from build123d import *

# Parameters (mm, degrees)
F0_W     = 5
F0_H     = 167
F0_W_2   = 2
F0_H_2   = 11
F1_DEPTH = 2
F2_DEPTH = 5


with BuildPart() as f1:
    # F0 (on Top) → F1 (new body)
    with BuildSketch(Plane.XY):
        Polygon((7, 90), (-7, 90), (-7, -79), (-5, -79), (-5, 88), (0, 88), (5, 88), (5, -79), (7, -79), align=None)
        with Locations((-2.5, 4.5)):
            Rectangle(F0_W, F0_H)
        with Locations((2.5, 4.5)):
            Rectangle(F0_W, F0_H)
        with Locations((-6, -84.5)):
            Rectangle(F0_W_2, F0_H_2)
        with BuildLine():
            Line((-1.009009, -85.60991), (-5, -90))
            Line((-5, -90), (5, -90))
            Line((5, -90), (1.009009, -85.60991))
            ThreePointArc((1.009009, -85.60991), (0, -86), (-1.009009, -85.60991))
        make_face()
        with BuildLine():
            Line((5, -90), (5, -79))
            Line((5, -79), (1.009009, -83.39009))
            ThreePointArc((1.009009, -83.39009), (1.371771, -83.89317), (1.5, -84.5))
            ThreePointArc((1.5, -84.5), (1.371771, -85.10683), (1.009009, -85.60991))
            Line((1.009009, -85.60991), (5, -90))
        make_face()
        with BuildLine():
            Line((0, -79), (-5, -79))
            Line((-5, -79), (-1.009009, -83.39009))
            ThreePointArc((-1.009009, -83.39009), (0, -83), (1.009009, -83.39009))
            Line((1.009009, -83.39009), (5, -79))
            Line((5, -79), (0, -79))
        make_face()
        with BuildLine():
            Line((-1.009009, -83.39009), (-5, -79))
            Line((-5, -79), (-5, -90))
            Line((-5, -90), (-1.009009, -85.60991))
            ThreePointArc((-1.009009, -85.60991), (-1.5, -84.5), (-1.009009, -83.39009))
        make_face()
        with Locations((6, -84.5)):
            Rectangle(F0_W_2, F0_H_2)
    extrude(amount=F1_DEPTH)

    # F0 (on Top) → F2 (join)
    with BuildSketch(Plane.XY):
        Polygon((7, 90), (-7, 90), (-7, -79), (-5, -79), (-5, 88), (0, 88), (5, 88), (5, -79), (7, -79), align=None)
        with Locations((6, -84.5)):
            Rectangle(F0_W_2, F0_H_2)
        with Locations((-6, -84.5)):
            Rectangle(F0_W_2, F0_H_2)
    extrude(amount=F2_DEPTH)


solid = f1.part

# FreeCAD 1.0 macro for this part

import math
import FreeCAD as App
import Part
import Sketcher

V = App.Vector

doc = App.newDocument("Part")
body = doc.addObject("PartDesign::Body", "Body")

sketch1 = body.newObject("Sketcher::SketchObject", "Sketch")
sketch1.AttachmentSupport = (doc.getObject("XY_Plane"), [""])
sketch1.MapMode = "FlatFace"
sketch1.addGeometry(Part.LineSegment(V(-7, -90, 0), V(7, -90, 0)), False)
sketch1.addGeometry(Part.LineSegment(V(7, -90, 0), V(7, 90, 0)), False)
sketch1.addGeometry(Part.LineSegment(V(7, 90, 0), V(-7, 90, 0)), False)
sketch1.addGeometry(Part.LineSegment(V(-7, 90, 0), V(-7, -90, 0)), False)
sketch1.addGeometry(Part.ArcOfCircle(Part.Circle(V(0, -84.5, 0), V(0, 0, 1), 1.5), math.radians(-132), math.radians(-48)), False)
sketch1.addGeometry(Part.ArcOfCircle(Part.Circle(V(0, -84.5, 0), V(0, 0, 1), 1.5), math.radians(132), math.radians(228)), False)
sketch1.addGeometry(Part.ArcOfCircle(Part.Circle(V(0, -84.5, 0), V(0, 0, 1), 1.5), math.radians(48), math.radians(132)), False)
sketch1.addGeometry(Part.ArcOfCircle(Part.Circle(V(0, -84.5, 0), V(0, 0, 1), 1.5), math.radians(0), math.radians(48)), False)
sketch1.addGeometry(Part.ArcOfCircle(Part.Circle(V(0, -84.5, 0), V(0, 0, 1), 1.5), math.radians(-48), math.radians(0)), False)
sketch1.addConstraint(Sketcher.Constraint("Coincident", 0, 2, 1, 1))
sketch1.addConstraint(Sketcher.Constraint("Coincident", 1, 2, 2, 1))
sketch1.addConstraint(Sketcher.Constraint("Coincident", 2, 2, 3, 1))
sketch1.addConstraint(Sketcher.Constraint("Coincident", 3, 2, 0, 1))
sketch1.addConstraint(Sketcher.Constraint("Tangent", 4, 1, 5, 2))
sketch1.addConstraint(Sketcher.Constraint("Tangent", 5, 1, 6, 2))
sketch1.addConstraint(Sketcher.Constraint("Tangent", 6, 1, 7, 2))
sketch1.addConstraint(Sketcher.Constraint("Coincident", 7, 1, 8, 2))
sketch1.addConstraint(Sketcher.Constraint("Tangent", 8, 1, 4, 2))
sketch1.addConstraint(Sketcher.Constraint("Horizontal", 0))
sketch1.addConstraint(Sketcher.Constraint("Vertical", 1))
sketch1.addConstraint(Sketcher.Constraint("Horizontal", 2))
sketch1.addConstraint(Sketcher.Constraint("Vertical", 3))
sketch1.addConstraint(Sketcher.Constraint("Coincident", 6, 3, 4, 3))
sketch1.addConstraint(Sketcher.Constraint("Symmetric", 0, 2, 2, 2, -1, 1))
sketch1.addConstraint(Sketcher.Constraint("Symmetric", 5, 1, 6, 1, -2))
sketch1.addConstraint(Sketcher.Constraint("Horizontal", 6, 3, 7, 1))
sketch1.addConstraint(Sketcher.Constraint("Horizontal", 4, 1, 8, 1))
sketch1.addConstraint(Sketcher.Constraint("Vertical", 4, 1, 5, 1))
sketch1.addConstraint(Sketcher.Constraint("Radius", 4, 1.499999))
sketch1.addConstraint(Sketcher.Constraint("DistanceX", 0, 1, 0, 2, 14.0))
sketch1.addConstraint(Sketcher.Constraint("DistanceY", 1, 1, 1, 2, 180.0))
sketch1.addConstraint(Sketcher.Constraint("DistanceY", 4, 3, -1, 1, 84.500001))
sketch1.addConstraint(Sketcher.Constraint("DistanceX", -1, 1, 7, 1, 1.5))
sketch1.addConstraint(Sketcher.Constraint("DistanceX", 4, 1, -1, 1, 1.009009))
pad1 = body.newObject("PartDesign::Pad", "Pad")
pad1.Profile = sketch1
pad1.Length = 2

sketch2 = body.newObject("Sketcher::SketchObject", "Sketch001")
sketch2.AttachmentSupport = (doc.getObject("XY_Plane"), [""])
sketch2.MapMode = "FlatFace"
sketch2.addGeometry(Part.LineSegment(V(7, 90, 0), V(-7, 90, 0)), False)
sketch2.addGeometry(Part.LineSegment(V(-7, 90, 0), V(-7, -90, 0)), False)
sketch2.addGeometry(Part.LineSegment(V(-7, -90, 0), V(-5, -90, 0)), False)
sketch2.addGeometry(Part.LineSegment(V(-5, -90, 0), V(-5, 88, 0)), False)
sketch2.addGeometry(Part.LineSegment(V(-5, 88, 0), V(5, 88, 0)), False)
sketch2.addGeometry(Part.LineSegment(V(5, 88, 0), V(5, -90, 0)), False)
sketch2.addGeometry(Part.LineSegment(V(5, -90, 0), V(7, -90, 0)), False)
sketch2.addGeometry(Part.LineSegment(V(7, -90, 0), V(7, 90, 0)), False)
sketch2.addConstraint(Sketcher.Constraint("Coincident", 0, 2, 1, 1))
sketch2.addConstraint(Sketcher.Constraint("Coincident", 1, 2, 2, 1))
sketch2.addConstraint(Sketcher.Constraint("Coincident", 2, 2, 3, 1))
sketch2.addConstraint(Sketcher.Constraint("Coincident", 3, 2, 4, 1))
sketch2.addConstraint(Sketcher.Constraint("Coincident", 4, 2, 5, 1))
sketch2.addConstraint(Sketcher.Constraint("Coincident", 5, 2, 6, 1))
sketch2.addConstraint(Sketcher.Constraint("Coincident", 6, 2, 7, 1))
sketch2.addConstraint(Sketcher.Constraint("Coincident", 7, 2, 0, 1))
sketch2.addConstraint(Sketcher.Constraint("Horizontal", 0))
sketch2.addConstraint(Sketcher.Constraint("Vertical", 1))
sketch2.addConstraint(Sketcher.Constraint("Horizontal", 2))
sketch2.addConstraint(Sketcher.Constraint("Vertical", 3))
sketch2.addConstraint(Sketcher.Constraint("Horizontal", 4))
sketch2.addConstraint(Sketcher.Constraint("Vertical", 5))
sketch2.addConstraint(Sketcher.Constraint("Horizontal", 6))
sketch2.addConstraint(Sketcher.Constraint("Vertical", 7))
sketch2.addConstraint(Sketcher.Constraint("Symmetric", 0, 2, 6, 2, -1, 1))
sketch2.addConstraint(Sketcher.Constraint("Symmetric", 2, 2, 5, 2, -2))
sketch2.addConstraint(Sketcher.Constraint("DistanceX", 0, 2, 0, 1, 14.0))
sketch2.addConstraint(Sketcher.Constraint("DistanceX", 2, 1, 2, 2, 2.0))
sketch2.addConstraint(Sketcher.Constraint("DistanceY", 1, 2, 1, 1, 180.0))
sketch2.addConstraint(Sketcher.Constraint("DistanceY", 3, 1, 3, 2, 178.0))
pad2 = body.newObject("PartDesign::Pad", "Pad001")
pad2.Profile = sketch2
pad2.Length = 5

doc.recompute()
